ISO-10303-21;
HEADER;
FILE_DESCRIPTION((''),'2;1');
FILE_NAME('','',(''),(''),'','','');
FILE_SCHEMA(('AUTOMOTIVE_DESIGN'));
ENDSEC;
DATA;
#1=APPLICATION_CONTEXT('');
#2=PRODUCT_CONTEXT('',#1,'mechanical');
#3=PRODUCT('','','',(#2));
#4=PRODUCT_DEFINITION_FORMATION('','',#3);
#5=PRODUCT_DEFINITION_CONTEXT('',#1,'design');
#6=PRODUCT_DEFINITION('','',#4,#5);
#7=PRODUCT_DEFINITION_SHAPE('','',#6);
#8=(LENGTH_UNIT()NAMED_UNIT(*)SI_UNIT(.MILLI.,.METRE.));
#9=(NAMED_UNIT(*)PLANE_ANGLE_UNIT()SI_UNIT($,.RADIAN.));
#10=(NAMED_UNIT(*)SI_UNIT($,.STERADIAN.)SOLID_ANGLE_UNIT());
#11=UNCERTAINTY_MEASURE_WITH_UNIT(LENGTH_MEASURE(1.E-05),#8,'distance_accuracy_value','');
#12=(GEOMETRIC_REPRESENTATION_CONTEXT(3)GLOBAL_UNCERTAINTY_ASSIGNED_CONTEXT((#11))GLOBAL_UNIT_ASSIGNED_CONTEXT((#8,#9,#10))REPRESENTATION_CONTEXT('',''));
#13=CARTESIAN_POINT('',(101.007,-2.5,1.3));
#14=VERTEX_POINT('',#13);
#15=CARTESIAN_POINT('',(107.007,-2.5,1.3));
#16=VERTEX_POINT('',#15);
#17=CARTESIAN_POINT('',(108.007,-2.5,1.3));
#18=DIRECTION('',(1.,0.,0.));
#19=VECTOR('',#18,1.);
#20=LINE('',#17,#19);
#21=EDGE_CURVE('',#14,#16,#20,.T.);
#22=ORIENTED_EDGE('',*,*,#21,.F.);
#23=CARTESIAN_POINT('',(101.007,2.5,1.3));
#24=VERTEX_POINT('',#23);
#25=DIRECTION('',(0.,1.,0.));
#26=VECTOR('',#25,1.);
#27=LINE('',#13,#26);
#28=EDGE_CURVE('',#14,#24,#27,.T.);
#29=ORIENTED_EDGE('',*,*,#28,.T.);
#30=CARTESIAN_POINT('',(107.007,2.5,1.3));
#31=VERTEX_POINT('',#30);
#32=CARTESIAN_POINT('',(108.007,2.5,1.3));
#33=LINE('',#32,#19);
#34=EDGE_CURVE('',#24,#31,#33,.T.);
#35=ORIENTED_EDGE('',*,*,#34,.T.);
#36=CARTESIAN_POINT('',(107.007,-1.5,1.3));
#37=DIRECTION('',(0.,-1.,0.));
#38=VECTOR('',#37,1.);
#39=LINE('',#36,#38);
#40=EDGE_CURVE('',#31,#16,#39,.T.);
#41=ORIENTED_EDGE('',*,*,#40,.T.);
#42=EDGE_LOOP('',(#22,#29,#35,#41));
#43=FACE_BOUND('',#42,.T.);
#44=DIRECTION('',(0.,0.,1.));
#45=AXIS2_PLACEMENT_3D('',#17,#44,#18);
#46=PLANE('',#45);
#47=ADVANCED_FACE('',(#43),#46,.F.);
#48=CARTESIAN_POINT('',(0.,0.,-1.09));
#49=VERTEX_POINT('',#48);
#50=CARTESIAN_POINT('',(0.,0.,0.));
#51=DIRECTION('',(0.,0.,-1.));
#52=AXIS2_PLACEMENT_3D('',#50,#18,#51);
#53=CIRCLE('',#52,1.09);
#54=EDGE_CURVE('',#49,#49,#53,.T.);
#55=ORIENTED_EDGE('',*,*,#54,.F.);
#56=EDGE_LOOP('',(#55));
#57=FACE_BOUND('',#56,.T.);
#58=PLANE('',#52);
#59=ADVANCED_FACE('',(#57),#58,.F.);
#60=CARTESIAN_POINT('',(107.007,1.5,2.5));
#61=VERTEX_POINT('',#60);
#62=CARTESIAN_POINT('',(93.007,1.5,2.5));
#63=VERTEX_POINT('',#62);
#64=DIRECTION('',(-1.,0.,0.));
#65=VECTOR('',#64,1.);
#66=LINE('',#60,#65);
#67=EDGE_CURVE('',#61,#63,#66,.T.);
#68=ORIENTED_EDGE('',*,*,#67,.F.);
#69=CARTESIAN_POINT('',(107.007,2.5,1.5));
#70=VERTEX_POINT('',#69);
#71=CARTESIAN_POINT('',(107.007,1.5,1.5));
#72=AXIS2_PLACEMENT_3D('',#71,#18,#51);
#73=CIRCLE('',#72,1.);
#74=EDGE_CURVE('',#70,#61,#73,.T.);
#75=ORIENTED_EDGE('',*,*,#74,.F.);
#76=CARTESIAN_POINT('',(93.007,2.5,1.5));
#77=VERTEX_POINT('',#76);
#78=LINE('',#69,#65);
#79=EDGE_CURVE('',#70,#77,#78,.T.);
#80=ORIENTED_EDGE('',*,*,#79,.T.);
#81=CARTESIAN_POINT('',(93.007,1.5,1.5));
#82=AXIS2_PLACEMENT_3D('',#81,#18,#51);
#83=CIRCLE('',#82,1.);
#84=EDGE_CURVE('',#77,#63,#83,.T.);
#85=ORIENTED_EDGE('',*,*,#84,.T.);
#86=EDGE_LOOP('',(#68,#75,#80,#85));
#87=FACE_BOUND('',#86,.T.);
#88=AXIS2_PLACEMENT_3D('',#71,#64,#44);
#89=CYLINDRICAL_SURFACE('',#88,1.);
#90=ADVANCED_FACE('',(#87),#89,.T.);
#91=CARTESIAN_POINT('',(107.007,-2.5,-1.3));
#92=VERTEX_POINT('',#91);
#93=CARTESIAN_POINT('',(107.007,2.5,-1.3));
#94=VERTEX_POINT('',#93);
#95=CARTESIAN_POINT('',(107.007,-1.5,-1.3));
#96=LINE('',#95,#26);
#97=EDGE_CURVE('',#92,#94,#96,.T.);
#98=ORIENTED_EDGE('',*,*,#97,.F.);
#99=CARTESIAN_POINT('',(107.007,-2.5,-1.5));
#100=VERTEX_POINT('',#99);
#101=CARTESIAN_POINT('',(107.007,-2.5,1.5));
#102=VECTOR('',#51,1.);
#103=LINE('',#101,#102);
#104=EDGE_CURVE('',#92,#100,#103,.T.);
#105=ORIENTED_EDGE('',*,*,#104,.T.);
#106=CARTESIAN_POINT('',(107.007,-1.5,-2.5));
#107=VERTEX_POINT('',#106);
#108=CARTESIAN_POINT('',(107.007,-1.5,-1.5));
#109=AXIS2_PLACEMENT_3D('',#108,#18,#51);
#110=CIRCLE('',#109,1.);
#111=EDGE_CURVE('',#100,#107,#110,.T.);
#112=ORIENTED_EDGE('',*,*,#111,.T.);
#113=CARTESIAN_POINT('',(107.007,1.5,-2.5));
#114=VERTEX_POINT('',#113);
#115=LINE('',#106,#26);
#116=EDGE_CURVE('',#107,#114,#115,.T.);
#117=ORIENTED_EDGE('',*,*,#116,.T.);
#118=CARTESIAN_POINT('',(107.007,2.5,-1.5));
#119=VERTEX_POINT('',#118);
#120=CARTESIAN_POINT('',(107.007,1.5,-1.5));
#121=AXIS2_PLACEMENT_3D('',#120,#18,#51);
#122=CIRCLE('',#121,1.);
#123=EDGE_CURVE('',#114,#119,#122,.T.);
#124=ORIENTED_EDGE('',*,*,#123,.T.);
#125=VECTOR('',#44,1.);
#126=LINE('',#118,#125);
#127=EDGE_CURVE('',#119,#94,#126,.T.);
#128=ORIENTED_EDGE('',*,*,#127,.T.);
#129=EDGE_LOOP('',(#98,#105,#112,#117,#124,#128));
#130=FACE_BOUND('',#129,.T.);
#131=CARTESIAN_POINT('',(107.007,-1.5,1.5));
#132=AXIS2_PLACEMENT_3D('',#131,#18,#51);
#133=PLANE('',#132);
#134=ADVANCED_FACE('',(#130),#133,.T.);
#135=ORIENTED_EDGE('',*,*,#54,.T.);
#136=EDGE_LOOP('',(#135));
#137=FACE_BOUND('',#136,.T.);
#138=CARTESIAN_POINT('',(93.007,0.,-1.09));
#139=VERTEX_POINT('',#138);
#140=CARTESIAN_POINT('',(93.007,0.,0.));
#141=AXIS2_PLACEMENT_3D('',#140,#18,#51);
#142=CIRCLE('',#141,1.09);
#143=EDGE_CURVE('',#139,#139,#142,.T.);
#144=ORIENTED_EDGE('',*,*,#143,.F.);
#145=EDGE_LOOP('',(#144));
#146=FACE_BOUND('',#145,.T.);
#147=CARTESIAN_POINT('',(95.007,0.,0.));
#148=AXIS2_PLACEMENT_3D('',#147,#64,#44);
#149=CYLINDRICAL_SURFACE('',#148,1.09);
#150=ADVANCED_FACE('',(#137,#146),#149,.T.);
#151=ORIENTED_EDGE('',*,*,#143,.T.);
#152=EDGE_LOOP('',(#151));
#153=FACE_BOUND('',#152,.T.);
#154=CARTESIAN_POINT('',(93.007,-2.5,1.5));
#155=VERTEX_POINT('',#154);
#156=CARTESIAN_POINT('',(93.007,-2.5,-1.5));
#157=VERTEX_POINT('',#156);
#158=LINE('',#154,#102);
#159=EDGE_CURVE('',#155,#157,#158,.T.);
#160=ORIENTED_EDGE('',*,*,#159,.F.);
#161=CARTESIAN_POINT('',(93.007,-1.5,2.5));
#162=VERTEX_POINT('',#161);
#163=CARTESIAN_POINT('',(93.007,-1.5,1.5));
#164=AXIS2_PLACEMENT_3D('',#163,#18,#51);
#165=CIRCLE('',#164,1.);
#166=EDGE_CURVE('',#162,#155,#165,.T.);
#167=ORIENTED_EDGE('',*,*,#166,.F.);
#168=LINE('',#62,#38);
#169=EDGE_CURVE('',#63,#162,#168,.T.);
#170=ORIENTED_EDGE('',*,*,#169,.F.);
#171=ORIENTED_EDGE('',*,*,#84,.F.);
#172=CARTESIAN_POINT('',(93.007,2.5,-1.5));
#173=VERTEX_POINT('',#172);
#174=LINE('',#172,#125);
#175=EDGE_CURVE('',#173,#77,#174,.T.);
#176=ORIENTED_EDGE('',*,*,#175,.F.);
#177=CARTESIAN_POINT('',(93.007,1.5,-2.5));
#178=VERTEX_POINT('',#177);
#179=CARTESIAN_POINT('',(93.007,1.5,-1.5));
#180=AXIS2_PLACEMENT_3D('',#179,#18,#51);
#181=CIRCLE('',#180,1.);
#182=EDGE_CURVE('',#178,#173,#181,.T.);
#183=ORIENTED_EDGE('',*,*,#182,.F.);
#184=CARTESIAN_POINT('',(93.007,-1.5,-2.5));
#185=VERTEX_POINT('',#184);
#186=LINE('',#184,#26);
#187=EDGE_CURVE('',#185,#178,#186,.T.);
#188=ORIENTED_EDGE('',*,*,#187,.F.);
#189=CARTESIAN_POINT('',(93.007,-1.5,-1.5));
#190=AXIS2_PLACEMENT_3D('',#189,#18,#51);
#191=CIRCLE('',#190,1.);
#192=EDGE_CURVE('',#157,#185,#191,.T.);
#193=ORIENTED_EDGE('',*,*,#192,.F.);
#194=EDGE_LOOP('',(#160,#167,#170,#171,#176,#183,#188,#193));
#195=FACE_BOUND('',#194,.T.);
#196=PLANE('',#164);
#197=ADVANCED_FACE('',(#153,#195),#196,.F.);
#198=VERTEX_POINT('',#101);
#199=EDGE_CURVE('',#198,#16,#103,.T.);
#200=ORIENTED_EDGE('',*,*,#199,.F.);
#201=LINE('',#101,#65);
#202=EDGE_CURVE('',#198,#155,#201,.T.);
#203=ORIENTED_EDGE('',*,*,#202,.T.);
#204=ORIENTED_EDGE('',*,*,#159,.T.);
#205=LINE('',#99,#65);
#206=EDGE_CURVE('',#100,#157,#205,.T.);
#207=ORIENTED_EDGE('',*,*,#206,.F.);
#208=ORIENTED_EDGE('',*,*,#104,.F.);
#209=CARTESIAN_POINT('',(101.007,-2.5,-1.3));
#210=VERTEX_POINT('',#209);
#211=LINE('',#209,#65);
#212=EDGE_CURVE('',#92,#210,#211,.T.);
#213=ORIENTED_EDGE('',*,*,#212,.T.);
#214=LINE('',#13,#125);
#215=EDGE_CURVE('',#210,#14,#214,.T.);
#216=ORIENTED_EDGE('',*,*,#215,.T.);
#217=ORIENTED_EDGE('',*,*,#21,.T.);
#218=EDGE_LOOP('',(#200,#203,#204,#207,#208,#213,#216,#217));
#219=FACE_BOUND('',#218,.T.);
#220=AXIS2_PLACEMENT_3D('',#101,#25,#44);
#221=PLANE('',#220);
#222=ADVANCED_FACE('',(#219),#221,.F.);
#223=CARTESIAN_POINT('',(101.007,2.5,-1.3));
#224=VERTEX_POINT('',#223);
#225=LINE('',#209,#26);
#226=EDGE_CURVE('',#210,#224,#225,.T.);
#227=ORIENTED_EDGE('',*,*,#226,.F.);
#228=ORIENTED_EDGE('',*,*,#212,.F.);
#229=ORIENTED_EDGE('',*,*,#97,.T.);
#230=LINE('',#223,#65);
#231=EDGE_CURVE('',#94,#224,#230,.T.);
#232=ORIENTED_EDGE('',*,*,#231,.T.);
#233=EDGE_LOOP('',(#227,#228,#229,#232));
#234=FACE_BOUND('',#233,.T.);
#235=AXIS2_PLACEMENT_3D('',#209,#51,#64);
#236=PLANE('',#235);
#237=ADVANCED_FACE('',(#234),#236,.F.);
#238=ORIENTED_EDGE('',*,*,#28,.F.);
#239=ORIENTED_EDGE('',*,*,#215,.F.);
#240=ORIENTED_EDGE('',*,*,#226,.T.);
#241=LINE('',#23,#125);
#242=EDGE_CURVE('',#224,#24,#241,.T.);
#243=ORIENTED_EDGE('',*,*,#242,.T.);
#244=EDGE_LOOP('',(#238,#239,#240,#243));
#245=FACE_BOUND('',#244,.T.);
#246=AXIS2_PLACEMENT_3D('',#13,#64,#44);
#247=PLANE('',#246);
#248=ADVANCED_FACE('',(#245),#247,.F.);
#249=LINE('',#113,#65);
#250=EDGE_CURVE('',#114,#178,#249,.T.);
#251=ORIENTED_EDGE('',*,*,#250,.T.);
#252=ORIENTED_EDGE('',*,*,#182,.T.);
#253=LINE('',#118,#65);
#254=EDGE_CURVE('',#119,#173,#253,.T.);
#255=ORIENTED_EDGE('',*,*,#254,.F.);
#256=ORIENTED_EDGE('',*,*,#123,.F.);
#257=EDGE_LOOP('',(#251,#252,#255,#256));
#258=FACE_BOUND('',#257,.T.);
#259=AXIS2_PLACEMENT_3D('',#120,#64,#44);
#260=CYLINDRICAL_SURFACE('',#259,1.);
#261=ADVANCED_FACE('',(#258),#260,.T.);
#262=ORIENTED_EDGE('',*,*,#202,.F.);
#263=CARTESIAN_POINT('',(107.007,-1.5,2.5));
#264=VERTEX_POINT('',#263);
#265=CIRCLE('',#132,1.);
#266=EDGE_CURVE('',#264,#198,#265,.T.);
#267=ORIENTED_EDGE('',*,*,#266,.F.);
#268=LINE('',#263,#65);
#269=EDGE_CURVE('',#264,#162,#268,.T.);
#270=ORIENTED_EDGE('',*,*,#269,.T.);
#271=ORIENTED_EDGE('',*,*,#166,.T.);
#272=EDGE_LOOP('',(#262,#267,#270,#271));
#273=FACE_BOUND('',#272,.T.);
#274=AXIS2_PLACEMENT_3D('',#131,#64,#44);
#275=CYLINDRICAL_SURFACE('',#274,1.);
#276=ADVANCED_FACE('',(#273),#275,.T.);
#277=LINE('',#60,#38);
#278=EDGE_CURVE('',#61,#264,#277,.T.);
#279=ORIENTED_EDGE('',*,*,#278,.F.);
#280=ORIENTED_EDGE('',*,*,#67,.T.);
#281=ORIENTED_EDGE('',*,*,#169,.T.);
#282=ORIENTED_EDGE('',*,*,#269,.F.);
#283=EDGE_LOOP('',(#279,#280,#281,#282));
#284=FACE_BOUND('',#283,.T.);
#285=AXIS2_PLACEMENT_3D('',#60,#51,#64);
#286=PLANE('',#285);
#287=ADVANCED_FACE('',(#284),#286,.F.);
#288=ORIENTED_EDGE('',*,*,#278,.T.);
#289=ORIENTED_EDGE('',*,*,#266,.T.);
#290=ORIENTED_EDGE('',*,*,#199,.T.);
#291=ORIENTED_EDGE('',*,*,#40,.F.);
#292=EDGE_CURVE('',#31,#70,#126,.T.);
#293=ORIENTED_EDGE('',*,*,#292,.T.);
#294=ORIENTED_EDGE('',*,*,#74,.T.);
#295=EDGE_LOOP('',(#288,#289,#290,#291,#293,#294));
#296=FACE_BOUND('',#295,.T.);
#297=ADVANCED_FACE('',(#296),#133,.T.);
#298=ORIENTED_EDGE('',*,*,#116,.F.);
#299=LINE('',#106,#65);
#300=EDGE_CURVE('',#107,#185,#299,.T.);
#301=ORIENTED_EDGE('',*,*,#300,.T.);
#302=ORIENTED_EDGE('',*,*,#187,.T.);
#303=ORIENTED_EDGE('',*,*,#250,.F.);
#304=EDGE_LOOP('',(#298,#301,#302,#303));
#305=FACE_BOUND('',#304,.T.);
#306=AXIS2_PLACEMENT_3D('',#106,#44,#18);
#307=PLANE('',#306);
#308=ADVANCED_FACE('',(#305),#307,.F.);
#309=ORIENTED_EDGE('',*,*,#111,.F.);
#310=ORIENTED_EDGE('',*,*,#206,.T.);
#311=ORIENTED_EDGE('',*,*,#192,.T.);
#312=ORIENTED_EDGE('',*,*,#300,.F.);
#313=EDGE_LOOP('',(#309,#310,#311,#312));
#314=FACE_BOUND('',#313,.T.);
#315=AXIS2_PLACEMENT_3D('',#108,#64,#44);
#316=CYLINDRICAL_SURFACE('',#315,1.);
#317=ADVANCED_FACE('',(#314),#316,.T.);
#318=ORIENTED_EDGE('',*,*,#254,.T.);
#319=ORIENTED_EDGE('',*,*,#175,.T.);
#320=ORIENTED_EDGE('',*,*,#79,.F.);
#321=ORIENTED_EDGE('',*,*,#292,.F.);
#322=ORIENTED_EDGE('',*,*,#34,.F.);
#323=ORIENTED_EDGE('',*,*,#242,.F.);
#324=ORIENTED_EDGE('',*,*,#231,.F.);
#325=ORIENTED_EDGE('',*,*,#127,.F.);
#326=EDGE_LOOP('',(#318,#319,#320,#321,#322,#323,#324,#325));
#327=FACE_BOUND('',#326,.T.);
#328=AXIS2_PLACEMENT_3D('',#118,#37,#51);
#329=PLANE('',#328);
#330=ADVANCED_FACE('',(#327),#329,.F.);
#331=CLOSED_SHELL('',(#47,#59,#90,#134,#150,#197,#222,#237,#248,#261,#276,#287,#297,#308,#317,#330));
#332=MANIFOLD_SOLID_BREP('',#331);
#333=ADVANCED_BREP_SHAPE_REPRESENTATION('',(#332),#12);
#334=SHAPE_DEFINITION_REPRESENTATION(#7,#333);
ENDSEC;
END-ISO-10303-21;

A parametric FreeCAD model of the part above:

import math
import FreeCAD as App
import Part
import Sketcher

V = App.Vector
Q = App.Units.Quantity


def add_polygon(sketch, points):
    """Adds a closed chain of lines whose ends are joined by coincident constraints."""
    first, n = sketch.GeometryCount, len(points)
    for a, b in zip(points, points[1:] + points[:1]):
        sketch.addGeometry(Part.LineSegment(App.Vector(*a, 0), App.Vector(*b, 0)), False)
    for i in range(n):
        sketch.addConstraint(Sketcher.Constraint("Coincident", first + i, 2, first + (i + 1) % n, 1))

doc = App.newDocument("Part")
params = doc.addObject("Spreadsheet::Sheet", "Params")
for row, (alias, value) in enumerate([
    ("sketch1_diameter", "2.18 mm"),
    ("pad1_length", "95.007 mm"),
    ("sketch2_radius", "1 mm"),
    ("sketch2_width", "3 mm"),
    ("pad2_length", "14 mm"),
    ("sketch3_width", "7 mm"),
    ("sketch3_height", "2.6 mm"),
], start=1):
    params.set(f"A{row}", alias)
    params.set(f"B{row}", "=" + value)
    params.setAlias(f"B{row}", alias)

body = doc.addObject("PartDesign::Body", "Body")

# Sketch on YZ plane
sketch1 = doc.addObject("Sketcher::SketchObject", "Sketch")
body.addObject(sketch1)
sketch1.AttachmentSupport = (doc.YZ_Plane, [""])
sketch1.MapMode = "FlatFace"
sketch1.addGeometry(Part.Circle(V(0, 0, 0), V(0, 0, 1), 1.1), False)
sketch1.addConstraint([
    Sketcher.Constraint("Coincident", 0, 3, -1, 1),
    Sketcher.Constraint("Diameter", 0, Q("2.18 mm")),
])
sketch1.setExpression("Constraints[1]", "Params.sketch1_diameter")
pad1 = doc.addObject("PartDesign::Pad", "Pad")
body.addObject(pad1)
pad1.Profile = sketch1
pad1.setExpression("Length", "Params.pad1_length")

# Sketch on YZ plane
sketch2 = doc.addObject("Sketcher::SketchObject", "Sketch001")
body.addObject(sketch2)
sketch2.AttachmentSupport = (doc.YZ_Plane, [""])
sketch2.MapMode = "FlatFace"
sketch2.AttachmentOffset = App.Placement(V(0, 0, 93.007), App.Rotation())
sketch2.addGeometry([
    Part.LineSegment(V(-2.5, 1.5, 0), V(-2.5, -1.5, 0)),  # 0
    Part.ArcOfCircle(Part.Circle(V(-1.5, -1.5, 0), V(0, 0, 1), 1), math.radians(-180), math.radians(-90)),  # 1
    Part.LineSegment(V(-1.5, -2.5, 0), V(1.5, -2.5, 0)),  # 2
    Part.ArcOfCircle(Part.Circle(V(1.5, -1.5, 0), V(0, 0, 1), 1), math.radians(-90), math.radians(0)),  # 3
    Part.LineSegment(V(2.5, -1.5, 0), V(2.5, 1.5, 0)),  # 4
    Part.ArcOfCircle(Part.Circle(V(1.5, 1.5, 0), V(0, 0, 1), 1), math.radians(0), math.radians(90)),  # 5
    Part.LineSegment(V(1.5, 2.5, 0), V(-1.5, 2.5, 0)),  # 6
    Part.ArcOfCircle(Part.Circle(V(-1.5, 1.5, 0), V(0, 0, 1), 1), math.radians(90), math.radians(180)),  # 7
], False)
sketch2.addConstraint([
    Sketcher.Constraint("Tangent", 0, 2, 1, 1),
    Sketcher.Constraint("Tangent", 1, 2, 2, 1),
    Sketcher.Constraint("Tangent", 2, 2, 3, 1),
    Sketcher.Constraint("Tangent", 3, 2, 4, 1),
    Sketcher.Constraint("Tangent", 4, 2, 5, 1),
    Sketcher.Constraint("Tangent", 5, 2, 6, 1),
    Sketcher.Constraint("Tangent", 6, 2, 7, 1),
    Sketcher.Constraint("Tangent", 7, 2, 0, 1),
    Sketcher.Constraint("Vertical", 0),
    Sketcher.Constraint("Horizontal", 2),
    Sketcher.Constraint("Vertical", 4),
    Sketcher.Constraint("Horizontal", 6),
    Sketcher.Constraint("Equal", 1, 3),
    Sketcher.Constraint("Equal", 3, 5),
    Sketcher.Constraint("Equal", 5, 7),
    Sketcher.Constraint("Symmetric", 1, 3, 5, 3, -1, 1),
    Sketcher.Constraint("Equal", 6, 0),
    Sketcher.Constraint("Radius", 1, Q("1 mm")),
    Sketcher.Constraint("DistanceX", 2, 1, 2, 2, Q("3 mm")),
])
sketch2.setExpression("Constraints[17]", "Params.sketch2_radius")
sketch2.setExpression("Constraints[18]", "Params.sketch2_width")
pad2 = doc.addObject("PartDesign::Pad", "Pad001")
body.addObject(pad2)
pad2.Profile = sketch2
pad2.setExpression("Length", "Params.pad2_length")

# Sketch on XZ plane
sketch3 = doc.addObject("Sketcher::SketchObject", "Sketch002")
body.addObject(sketch3)
sketch3.AttachmentSupport = (doc.XZ_Plane, [""])
sketch3.MapMode = "FlatFace"
add_polygon(sketch3, [(101, -1.3), (101, 1.3), (108, 1.3), (108, -1.3)])  # lines 0-3
sketch3.addConstraint([
    Sketcher.Constraint("Vertical", 0),
    Sketcher.Constraint("Horizontal", 1),
    Sketcher.Constraint("Vertical", 2),
    Sketcher.Constraint("Horizontal", 3),
    Sketcher.Constraint("DistanceX", 1, 1, 1, 2, Q("7 mm")),
    Sketcher.Constraint("DistanceY", 0, 1, 0, 2, Q("2.6 mm")),
    Sketcher.Constraint("DistanceY", -1, 1, 0, 2, Q("1.3 mm")),
    Sketcher.Constraint("DistanceX", -1, 1, 0, 2, Q("101.007 mm")),
])
sketch3.setExpression("Constraints[8]", "Params.sketch3_width")
sketch3.setExpression("Constraints[9]", "Params.sketch3_height")
pocket1 = doc.addObject("PartDesign::Pocket", "Pocket")
body.addObject(pocket1)
pocket1.Profile = sketch3
pocket1.Type = "ThroughAll"
pocket1.Midplane = True

doc.recompute()
